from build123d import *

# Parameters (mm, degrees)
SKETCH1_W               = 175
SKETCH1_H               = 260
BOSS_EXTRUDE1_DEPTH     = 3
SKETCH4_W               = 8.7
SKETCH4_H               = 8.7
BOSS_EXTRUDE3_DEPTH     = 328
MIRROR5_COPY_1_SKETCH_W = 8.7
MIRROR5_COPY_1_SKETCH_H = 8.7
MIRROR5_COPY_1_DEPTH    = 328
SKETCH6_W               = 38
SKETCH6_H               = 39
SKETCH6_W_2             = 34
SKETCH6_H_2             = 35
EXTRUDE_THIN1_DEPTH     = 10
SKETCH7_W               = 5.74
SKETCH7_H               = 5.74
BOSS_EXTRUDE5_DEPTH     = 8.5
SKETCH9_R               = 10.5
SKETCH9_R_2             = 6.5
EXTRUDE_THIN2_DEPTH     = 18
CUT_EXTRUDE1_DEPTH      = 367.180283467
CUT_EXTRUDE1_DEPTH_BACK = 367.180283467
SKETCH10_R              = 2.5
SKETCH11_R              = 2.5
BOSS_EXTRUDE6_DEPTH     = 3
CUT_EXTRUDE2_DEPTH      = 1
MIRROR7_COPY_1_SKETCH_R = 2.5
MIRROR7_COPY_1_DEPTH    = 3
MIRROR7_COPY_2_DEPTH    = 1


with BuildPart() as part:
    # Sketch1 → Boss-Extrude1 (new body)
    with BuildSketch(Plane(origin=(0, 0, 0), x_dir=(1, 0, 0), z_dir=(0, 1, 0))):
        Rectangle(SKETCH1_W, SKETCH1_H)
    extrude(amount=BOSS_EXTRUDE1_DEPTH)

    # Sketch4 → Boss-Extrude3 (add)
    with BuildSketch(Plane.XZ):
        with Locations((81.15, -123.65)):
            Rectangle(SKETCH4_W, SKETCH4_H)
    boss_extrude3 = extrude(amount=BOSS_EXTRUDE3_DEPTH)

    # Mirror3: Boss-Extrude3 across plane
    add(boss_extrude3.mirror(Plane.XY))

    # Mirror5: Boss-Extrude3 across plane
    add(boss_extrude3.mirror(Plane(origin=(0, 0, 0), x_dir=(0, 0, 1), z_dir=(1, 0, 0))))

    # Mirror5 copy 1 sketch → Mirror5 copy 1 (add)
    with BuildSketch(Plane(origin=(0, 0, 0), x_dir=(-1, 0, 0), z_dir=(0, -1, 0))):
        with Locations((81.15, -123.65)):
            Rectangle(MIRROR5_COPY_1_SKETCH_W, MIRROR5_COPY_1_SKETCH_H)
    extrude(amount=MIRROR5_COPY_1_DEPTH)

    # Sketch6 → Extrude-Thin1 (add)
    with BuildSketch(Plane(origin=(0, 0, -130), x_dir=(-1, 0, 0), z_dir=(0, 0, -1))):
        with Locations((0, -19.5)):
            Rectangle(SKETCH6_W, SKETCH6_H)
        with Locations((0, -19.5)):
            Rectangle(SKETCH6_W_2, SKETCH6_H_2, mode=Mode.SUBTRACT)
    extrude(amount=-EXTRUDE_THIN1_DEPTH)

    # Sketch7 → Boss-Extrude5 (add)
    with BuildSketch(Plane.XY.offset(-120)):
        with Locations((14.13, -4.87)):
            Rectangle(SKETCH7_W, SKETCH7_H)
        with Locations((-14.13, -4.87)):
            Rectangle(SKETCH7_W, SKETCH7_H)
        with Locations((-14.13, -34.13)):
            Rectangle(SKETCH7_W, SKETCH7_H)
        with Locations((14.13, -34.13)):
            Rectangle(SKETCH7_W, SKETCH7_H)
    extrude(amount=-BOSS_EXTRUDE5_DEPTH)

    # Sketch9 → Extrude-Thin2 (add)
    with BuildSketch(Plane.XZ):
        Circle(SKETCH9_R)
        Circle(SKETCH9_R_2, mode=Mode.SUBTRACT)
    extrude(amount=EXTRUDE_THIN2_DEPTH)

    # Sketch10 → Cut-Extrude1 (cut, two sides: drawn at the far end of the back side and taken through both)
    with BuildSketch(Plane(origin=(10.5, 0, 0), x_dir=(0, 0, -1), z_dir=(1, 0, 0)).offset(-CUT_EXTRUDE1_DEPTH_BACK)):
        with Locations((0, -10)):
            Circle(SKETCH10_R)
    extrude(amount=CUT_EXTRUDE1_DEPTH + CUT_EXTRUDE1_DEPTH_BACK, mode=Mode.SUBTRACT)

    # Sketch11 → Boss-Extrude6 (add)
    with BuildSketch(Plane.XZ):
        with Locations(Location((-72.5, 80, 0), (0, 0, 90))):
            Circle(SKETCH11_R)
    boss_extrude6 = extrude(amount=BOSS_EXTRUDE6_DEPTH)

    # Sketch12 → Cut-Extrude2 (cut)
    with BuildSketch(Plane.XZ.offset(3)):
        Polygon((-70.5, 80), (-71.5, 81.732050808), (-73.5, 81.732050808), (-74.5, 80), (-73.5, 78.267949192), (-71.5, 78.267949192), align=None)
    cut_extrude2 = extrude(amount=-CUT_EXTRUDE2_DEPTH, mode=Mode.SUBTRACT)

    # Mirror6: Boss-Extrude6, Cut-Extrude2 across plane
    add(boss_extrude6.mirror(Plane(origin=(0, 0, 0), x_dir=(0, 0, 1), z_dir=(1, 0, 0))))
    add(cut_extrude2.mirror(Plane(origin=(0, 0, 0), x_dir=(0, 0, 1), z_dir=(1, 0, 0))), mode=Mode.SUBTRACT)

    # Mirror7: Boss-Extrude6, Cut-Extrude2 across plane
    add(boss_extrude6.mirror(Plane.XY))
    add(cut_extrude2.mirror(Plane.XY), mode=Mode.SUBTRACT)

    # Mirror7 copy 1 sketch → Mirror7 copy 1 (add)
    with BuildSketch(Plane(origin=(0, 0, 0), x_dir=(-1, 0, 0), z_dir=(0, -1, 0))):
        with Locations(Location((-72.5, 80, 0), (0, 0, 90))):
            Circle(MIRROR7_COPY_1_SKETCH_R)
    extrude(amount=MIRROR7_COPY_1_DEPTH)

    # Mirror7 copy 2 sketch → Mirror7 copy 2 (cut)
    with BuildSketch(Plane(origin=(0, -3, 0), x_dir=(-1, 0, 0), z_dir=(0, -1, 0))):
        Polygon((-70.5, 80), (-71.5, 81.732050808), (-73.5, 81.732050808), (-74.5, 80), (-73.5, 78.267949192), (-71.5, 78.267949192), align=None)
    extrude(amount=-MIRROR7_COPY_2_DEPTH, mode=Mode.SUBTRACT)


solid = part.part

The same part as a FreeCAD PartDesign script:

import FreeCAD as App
import Part
import Sketcher
from FreeCAD import Vector
Q = App.Units.Quantity

doc = App.newDocument("Part")
body = doc.addObject("PartDesign::Body", "Body")

sketch1 = doc.addObject("Sketcher::SketchObject", "Sketch")
body.addObject(sketch1)
sketch1.AttachmentSupport = (doc.XZ_Plane, [""])
sketch1.MapMode = "FlatFace"
sketch1.addGeometry([
    Part.LineSegment(Vector(-88, -130, 0), Vector(-88, 130, 0)),
    Part.LineSegment(Vector(-88, 130, 0), Vector(88, 130, 0)),
    Part.LineSegment(Vector(88, 130, 0), Vector(88, -130, 0)),
    Part.LineSegment(Vector(88, -130, 0), Vector(-88, -130, 0)),
], False)
sketch1.addConstraint([
    Sketcher.Constraint("Coincident", 0, 2, 1, 1),
    Sketcher.Constraint("Coincident", 1, 2, 2, 1),
    Sketcher.Constraint("Coincident", 2, 2, 3, 1),
    Sketcher.Constraint("Coincident", 3, 2, 0, 1),
    Sketcher.Constraint("Vertical", 0),
    Sketcher.Constraint("Horizontal", 1),
    Sketcher.Constraint("Vertical", 2),
    Sketcher.Constraint("Horizontal", 3),
    Sketcher.Constraint("Symmetric", 0, 2, 2, 2, -1, 1),
    Sketcher.Constraint("DistanceX", 1, 1, 1, 2, 175.0),
    Sketcher.Constraint("DistanceY", 0, 1, 0, 2, 260.0),
])
pad1 = doc.addObject("PartDesign::Pad", "Pad")
body.addObject(pad1)
pad1.Profile = sketch1
pad1.Length = 3
pad1.Reversed = True

sketch2 = doc.addObject("Sketcher::SketchObject", "Sketch001")
body.addObject(sketch2)
sketch2.AttachmentSupport = (doc.XZ_Plane, [""])
sketch2.MapMode = "FlatFace"
sketch2.addGeometry([
    Part.LineSegment(Vector(77, -119, 0), Vector(77, -128, 0)),
    Part.LineSegment(Vector(77, -128, 0), Vector(86, -128, 0)),
    Part.LineSegment(Vector(86, -128, 0), Vector(86, -119, 0)),
    Part.LineSegment(Vector(86, -119, 0), Vector(77, -119, 0)),
], False)
sketch2.addConstraint([
    Sketcher.Constraint("Coincident", 0, 2, 1, 1),
    Sketcher.Constraint("Coincident", 1, 2, 2, 1),
    Sketcher.Constraint("Coincident", 2, 2, 3, 1),
    Sketcher.Constraint("Coincident", 3, 2, 0, 1),
    Sketcher.Constraint("Vertical", 0),
    Sketcher.Constraint("Horizontal", 1),
    Sketcher.Constraint("Vertical", 2),
    Sketcher.Constraint("Horizontal", 3),
    Sketcher.Constraint("Equal", 3, 0),
    Sketcher.Constraint("DistanceX", 1, 1, 1, 2, 8.7),
    Sketcher.Constraint("DistanceY", 0, 2, -1, 1, 128.0),
    Sketcher.Constraint("DistanceX", -1, 1, 0, 2, 76.8),
])
pad2 = doc.addObject("PartDesign::Pad", "Pad001")
body.addObject(pad2)
pad2.Profile = sketch2
pad2.Length = 328
doc.recompute()

mirrored = doc.addObject("PartDesign::Mirrored", "Mirrored")
body.addObject(mirrored)
mirrored.Originals = [pad2]
mirrored.MirrorPlane = (doc.XY_Plane, [""])
body.Tip = mirrored
doc.recompute()

mirrored2 = doc.addObject("PartDesign::Mirrored", "Mirrored001")
body.addObject(mirrored2)
mirrored2.Originals = [pad2]
mirrored2.MirrorPlane = (doc.YZ_Plane, [""])
body.Tip = mirrored2

sketch3 = doc.addObject("Sketcher::SketchObject", "Sketch002")
body.addObject(sketch3)
sketch3.AttachmentSupport = (doc.XZ_Plane, [""])
sketch3.MapMode = "FlatFace"
sketch3.addGeometry([
    Part.LineSegment(Vector(-77, 119, 0), Vector(-77, 128, 0)),
    Part.LineSegment(Vector(-77, 128, 0), Vector(-86, 128, 0)),
    Part.LineSegment(Vector(-86, 128, 0), Vector(-86, 119, 0)),
    Part.LineSegment(Vector(-86, 119, 0), Vector(-77, 119, 0)),
], False)
sketch3.addConstraint([
    Sketcher.Constraint("Coincident", 0, 2, 1, 1),
    Sketcher.Constraint("Coincident", 1, 2, 2, 1),
    Sketcher.Constraint("Coincident", 2, 2, 3, 1),
    Sketcher.Constraint("Coincident", 3, 2, 0, 1),
    Sketcher.Constraint("Vertical", 0),
    Sketcher.Constraint("Horizontal", 1),
    Sketcher.Constraint("Vertical", 2),
    Sketcher.Constraint("Horizontal", 3),
    Sketcher.Constraint("Equal", 3, 0),
    Sketcher.Constraint("DistanceX", 1, 2, 1, 1, 8.7),
    Sketcher.Constraint("DistanceY", -1, 1, 0, 2, 128.0),
    Sketcher.Constraint("DistanceX", 0, 2, -1, 1, 76.8),
])
pad3 = doc.addObject("PartDesign::Pad", "Pad002")
body.addObject(pad3)
pad3.Profile = sketch3
pad3.Length = 328

sketch4 = doc.addObject("Sketcher::SketchObject", "Sketch003")
body.addObject(sketch4)
sketch4.AttachmentSupport = (doc.XY_Plane, [""])
sketch4.MapMode = "FlatFace"
sketch4.AttachmentOffset = App.Placement(Vector(0, 0, -130), App.Rotation())
sketch4.addGeometry([
    Part.LineSegment(Vector(19, 0, 0), Vector(19, -39, 0)),
    Part.LineSegment(Vector(19, -39, 0), Vector(-19, -39, 0)),
    Part.LineSegment(Vector(-19, -39, 0), Vector(-19, 0, 0)),
    Part.LineSegment(Vector(-19, 0, 0), Vector(19, 0, 0)),
    Part.LineSegment(Vector(-17, -37, 0), Vector(17, -37, 0)),
    Part.LineSegment(Vector(17, -37, 0), Vector(17, -2, 0)),
    Part.LineSegment(Vector(17, -2, 0), Vector(-17, -2, 0)),
    Part.LineSegment(Vector(-17, -2, 0), Vector(-17, -37, 0)),
], False)
sketch4.addConstraint([
    Sketcher.Constraint("Coincident", 0, 2, 1, 1),
    Sketcher.Constraint("Coincident", 1, 2, 2, 1),
    Sketcher.Constraint("Coincident", 2, 2, 3, 1),
    Sketcher.Constraint("Coincident", 3, 2, 0, 1),
    Sketcher.Constraint("Coincident", 4, 2, 5, 1),
    Sketcher.Constraint("Coincident", 5, 2, 6, 1),
    Sketcher.Constraint("Coincident", 6, 2, 7, 1),
    Sketcher.Constraint("Coincident", 7, 2, 4, 1),
    Sketcher.Constraint("Vertical", 0),
    Sketcher.Constraint("Horizontal", 1),
    Sketcher.Constraint("Vertical", 2),
    Sketcher.Constraint("Horizontal", 3),
    Sketcher.Constraint("Horizontal", 4),
    Sketcher.Constraint("Vertical", 5),
    Sketcher.Constraint("Horizontal", 6),
    Sketcher.Constraint("Vertical", 7),
    Sketcher.Constraint("Symmetric", 2, 2, 3, 2, -1, 1),
    Sketcher.Constraint("DistanceX", 1, 2, 1, 1, 38.0),
    Sketcher.Constraint("DistanceX", 4, 1, 4, 2, 34.0),
    Sketcher.Constraint("DistanceY", 0, 2, 0, 1, 39.0),
    Sketcher.Constraint("DistanceY", 5, 1, 5, 2, 35.0),
    Sketcher.Constraint("DistanceX", -1, 1, 4, 2, 17.0),
    Sketcher.Constraint("DistanceY", 4, 2, -1, 1, 37.0),
])
pad4 = doc.addObject("PartDesign::Pad", "Pad003")
body.addObject(pad4)
pad4.Profile = sketch4
pad4.Length = 10

sketch5 = doc.addObject("Sketcher::SketchObject", "Sketch004")
body.addObject(sketch5)
sketch5.AttachmentSupport = (doc.XY_Plane, [""])
sketch5.MapMode = "FlatFace"
sketch5.AttachmentOffset = App.Placement(Vector(0, 0, -120), App.Rotation())
sketch5.addGeometry([
    Part.LineSegment(Vector(11, -2, 0), Vector(11, -8, 0)),
    Part.LineSegment(Vector(11, -8, 0), Vector(17, -8, 0)),
    Part.LineSegment(Vector(17, -8, 0), Vector(17, -2, 0)),
    Part.LineSegment(Vector(17, -2, 0), Vector(11, -2, 0)),
    Part.LineSegment(Vector(-17, -2, 0), Vector(-17, -8, 0)),
    Part.LineSegment(Vector(-17, -8, 0), Vector(-11, -8, 0)),
    Part.LineSegment(Vector(-11, -8, 0), Vector(-11, -2, 0)),
    Part.LineSegment(Vector(-11, -2, 0), Vector(-17, -2, 0)),
    Part.LineSegment(Vector(-17, -31, 0), Vector(-17, -37, 0)),
    Part.LineSegment(Vector(-17, -37, 0), Vector(-11, -37, 0)),
    Part.LineSegment(Vector(-11, -37, 0), Vector(-11, -31, 0)),
    Part.LineSegment(Vector(-11, -31, 0), Vector(-17, -31, 0)),
    Part.LineSegment(Vector(11, -31, 0), Vector(11, -37, 0)),
    Part.LineSegment(Vector(11, -37, 0), Vector(17, -37, 0)),
    Part.LineSegment(Vector(17, -37, 0), Vector(17, -31, 0)),
    Part.LineSegment(Vector(17, -31, 0), Vector(11, -31, 0)),
], False)
sketch5.addConstraint([
    Sketcher.Constraint("Coincident", 0, 2, 1, 1),
    Sketcher.Constraint("Coincident", 1, 2, 2, 1),
    Sketcher.Constraint("Coincident", 2, 2, 3, 1),
    Sketcher.Constraint("Coincident", 3, 2, 0, 1),
    Sketcher.Constraint("Coincident", 4, 2, 5, 1),
    Sketcher.Constraint("Coincident", 5, 2, 6, 1),
    Sketcher.Constraint("Coincident", 6, 2, 7, 1),
    Sketcher.Constraint("Coincident", 7, 2, 4, 1),
    Sketcher.Constraint("Coincident", 8, 2, 9, 1),
    Sketcher.Constraint("Coincident", 9, 2, 10, 1),
    Sketcher.Constraint("Coincident", 10, 2, 11, 1),
    Sketcher.Constraint("Coincident", 11, 2, 8, 1),
    Sketcher.Constraint("Coincident", 12, 2, 13, 1),
    Sketcher.Constraint("Coincident", 13, 2, 14, 1),
    Sketcher.Constraint("Coincident", 14, 2, 15, 1),
    Sketcher.Constraint("Coincident", 15, 2, 12, 1),
    Sketcher.Constraint("Vertical", 0),
    Sketcher.Constraint("Horizontal", 1),
    Sketcher.Constraint("Vertical", 2),
    Sketcher.Constraint("Horizontal", 3),
    Sketcher.Constraint("Vertical", 4),
    Sketcher.Constraint("Horizontal", 5),
    Sketcher.Constraint("Vertical", 6),
    Sketcher.Constraint("Horizontal", 7),
    Sketcher.Constraint("Vertical", 8),
    Sketcher.Constraint("Horizontal", 9),
    Sketcher.Constraint("Vertical", 10),
    Sketcher.Constraint("Horizontal", 11),
    Sketcher.Constraint("Vertical", 12),
    Sketcher.Constraint("Horizontal", 13),
    Sketcher.Constraint("Vertical", 14),
    Sketcher.Constraint("Horizontal", 15),
    Sketcher.Constraint("Symmetric", 1, 2, 4, 2, -2),
    Sketcher.Constraint("Symmetric", 3, 2, 6, 2, -2),
    Sketcher.Constraint("Symmetric", 9, 2, 12, 2, -2),
    Sketcher.Constraint("Symmetric", 11, 2, 14, 2, -2),
    Sketcher.Constraint("Vertical", 7, 2, 8, 2),
    Sketcher.Constraint("Vertical", 6, 2, 9, 2),
    Sketcher.Constraint("Equal", 15, 0),
    Sketcher.Constraint("Equal", 6, 8),
    Sketcher.Constraint("DistanceX", -1, 1, 1, 2, 17.0),
    Sketcher.Constraint("DistanceY", 2, 2, -1, 1, 2.0),
    Sketcher.Constraint("DistanceY", 8, 2, -1, 1, 37.0),
    Sketcher.Constraint("DistanceX", 1, 1, 1, 2, 5.74),
])
pad5 = doc.addObject("PartDesign::Pad", "Pad004")
body.addObject(pad5)
pad5.Profile = sketch5
pad5.Length = 8.5
pad5.Reversed = True

sketch6 = doc.addObject("Sketcher::SketchObject", "Sketch005")
body.addObject(sketch6)
sketch6.AttachmentSupport = (doc.XZ_Plane, [""])
sketch6.MapMode = "FlatFace"
sketch6.addGeometry([
    Part.Circle(Vector(0, 0, 0), Vector(0, 0, 1), 10),
    Part.Circle(Vector(0, 0, 0), Vector(0, 0, 1), 6),
], False)
sketch6.addConstraint([
    Sketcher.Constraint("Coincident", 0, 3, -1, 1),
    Sketcher.Constraint("Coincident", 1, 3, -1, 1),
    Sketcher.Constraint("Diameter", 0, 21.0),
    Sketcher.Constraint("Diameter", 1, 13.0),
])
pad6 = doc.addObject("PartDesign::Pad", "Pad005")
body.addObject(pad6)
pad6.Profile = sketch6
pad6.Length = 18

sketch7 = doc.addObject("Sketcher::SketchObject", "Sketch006")
body.addObject(sketch7)
sketch7.AttachmentSupport = (doc.YZ_Plane, [""])
sketch7.MapMode = "FlatFace"
sketch7.AttachmentOffset = App.Placement(Vector(0, 0, 10.5), App.Rotation())
sketch7.addGeometry(Part.Circle(Vector(-10, 0, 0), Vector(0, 0, 1), 2.5), False)
sketch7.addConstraint([
    Sketcher.Constraint("PointOnObject", 0, 3, -1),
    Sketcher.Constraint("Diameter", 0, 5.0),
    Sketcher.Constraint("DistanceX", 0, 3, -1, 1, 10.0),
])
pocket1 = doc.addObject("PartDesign::Pocket", "Pocket")
body.addObject(pocket1)
pocket1.Profile = sketch7
pocket1.Type = "ThroughAll"
pocket1.Midplane = True

sketch8 = doc.addObject("Sketcher::SketchObject", "Sketch007")
body.addObject(sketch8)
sketch8.AttachmentSupport = (doc.XZ_Plane, [""])
sketch8.MapMode = "FlatFace"
sketch8.addGeometry(Part.Circle(Vector(-72.5, 80, 0), Vector(0, 0, 1), 2.5), False)
sketch8.addConstraint([
    Sketcher.Constraint("Diameter", 0, 5.0),
    Sketcher.Constraint("DistanceY", -1, 1, 0, 3, 80.0),
    Sketcher.Constraint("DistanceX", 0, 3, -1, 1, 72.5),
])
pad7 = doc.addObject("PartDesign::Pad", "Pad006")
body.addObject(pad7)
pad7.Profile = sketch8
pad7.Length = 3

sketch9 = doc.addObject("Sketcher::SketchObject", "Sketch008")
body.addObject(sketch9)
sketch9.AttachmentSupport = (doc.XZ_Plane, [""])
sketch9.MapMode = "FlatFace"
sketch9.AttachmentOffset = App.Placement(Vector(0, 0, 3), App.Rotation())
sketch9.addGeometry([
    Part.LineSegment(Vector(-70.5, 80, 0), Vector(-71.5, 81.7, 0)),
    Part.LineSegment(Vector(-71.5, 81.7, 0), Vector(-73.5, 81.7, 0)),
    Part.LineSegment(Vector(-73.5, 81.7, 0), Vector(-74.5, 80, 0)),
    Part.LineSegment(Vector(-74.5, 80, 0), Vector(-73.5, 78.3, 0)),
    Part.LineSegment(Vector(-73.5, 78.3, 0), Vector(-71.5, 78.3, 0)),
    Part.LineSegment(Vector(-71.5, 78.3, 0), Vector(-70.5, 80, 0)),
], False)
sketch9.addConstraint([
    Sketcher.Constraint("Coincident", 0, 2, 1, 1),
    Sketcher.Constraint("Coincident", 1, 2, 2, 1),
    Sketcher.Constraint("Coincident", 2, 2, 3, 1),
    Sketcher.Constraint("Coincident", 3, 2, 4, 1),
    Sketcher.Constraint("Coincident", 4, 2, 5, 1),
    Sketcher.Constraint("Coincident", 5, 2, 0, 1),
    Sketcher.Constraint("Horizontal", 1),
    Sketcher.Constraint("Horizontal", 4),
    Sketcher.Constraint("Parallel", 0, 3),
    Sketcher.Constraint("Parallel", 2, 5),
    Sketcher.Constraint("Horizontal", 2, 2, 5, 2),
    Sketcher.Constraint("Vertical", 1, 2, 3, 2),
    Sketcher.Constraint("Vertical", 0, 2, 4, 2),
    Sketcher.Constraint("DistanceX", 1, 2, 1, 1, 2.0),
    Sketcher.Constraint("Angle", 0, Q("120 deg")),
    Sketcher.Constraint("Distance", 0, 2.0),
    Sketcher.Constraint("DistanceY", -1, 1, 2, 2, 80.0),
    Sketcher.Constraint("DistanceX", 0, 2, -1, 1, 71.5),
])
pocket2 = doc.addObject("PartDesign::Pocket", "Pocket001")
body.addObject(pocket2)
pocket2.Profile = sketch9
pocket2.Length = 1
doc.recompute()

mirrored3 = doc.addObject("PartDesign::Mirrored", "Mirrored002")
body.addObject(mirrored3)
mirrored3.Originals = [pad7, pocket2]
mirrored3.MirrorPlane = (doc.YZ_Plane, [""])
body.Tip = mirrored3
doc.recompute()

mirrored4 = doc.addObject("PartDesign::Mirrored", "Mirrored003")
body.addObject(mirrored4)
mirrored4.Originals = [pad7, pocket2]
mirrored4.MirrorPlane = (doc.XY_Plane, [""])
body.Tip = mirrored4

sketch10 = doc.addObject("Sketcher::SketchObject", "Sketch009")
body.addObject(sketch10)
sketch10.AttachmentSupport = (doc.XZ_Plane, [""])
sketch10.MapMode = "FlatFace"
sketch10.addGeometry(Part.Circle(Vector(72.5, -80, 0), Vector(0, 0, 1), 2.5), False)
sketch10.addConstraint([
    Sketcher.Constraint("Diameter", 0, 5.0),
    Sketcher.Constraint("DistanceY", 0, 3, -1, 1, 80.0),
    Sketcher.Constraint("DistanceX", -1, 1, 0, 3, 72.5),
])
pad8 = doc.addObject("PartDesign::Pad", "Pad007")
body.addObject(pad8)
pad8.Profile = sketch10
pad8.Length = 3

sketch11 = doc.addObject("Sketcher::SketchObject", "Sketch010")
body.addObject(sketch11)
sketch11.AttachmentSupport = (doc.XZ_Plane, [""])
sketch11.MapMode = "FlatFace"
sketch11.AttachmentOffset = App.Placement(Vector(0, 0, 3), App.Rotation())
sketch11.addGeometry([
    Part.LineSegment(Vector(70.5, -80, 0), Vector(71.5, -81.7, 0)),
    Part.LineSegment(Vector(71.5, -81.7, 0), Vector(73.5, -81.7, 0)),
    Part.LineSegment(Vector(73.5, -81.7, 0), Vector(74.5, -80, 0)),
    Part.LineSegment(Vector(74.5, -80, 0), Vector(73.5, -78.3, 0)),
    Part.LineSegment(Vector(73.5, -78.3, 0), Vector(71.5, -78.3, 0)),
    Part.LineSegment(Vector(71.5, -78.3, 0), Vector(70.5, -80, 0)),
], False)
sketch11.addConstraint([
    Sketcher.Constraint("Coincident", 0, 2, 1, 1),
    Sketcher.Constraint("Coincident", 1, 2, 2, 1),
    Sketcher.Constraint("Coincident", 2, 2, 3, 1),
    Sketcher.Constraint("Coincident", 3, 2, 4, 1),
    Sketcher.Constraint("Coincident", 4, 2, 5, 1),
    Sketcher.Constraint("Coincident", 5, 2, 0, 1),
    Sketcher.Constraint("Horizontal", 1),
    Sketcher.Constraint("Horizontal", 4),
    Sketcher.Constraint("Parallel", 0, 3),
    Sketcher.Constraint("Parallel", 2, 5),
    Sketcher.Constraint("Horizontal", 2, 2, 5, 2),
    Sketcher.Constraint("Vertical", 1, 2, 3, 2),
    Sketcher.Constraint("Vertical", 0, 2, 4, 2),
    Sketcher.Constraint("DistanceX", 1, 1, 1, 2, 2.0),
    Sketcher.Constraint("Angle", 0, Q("-60 deg")),
    Sketcher.Constraint("Distance", 0, 2.0),
    Sketcher.Constraint("DistanceY", 2, 2, -1, 1, 80.0),
    Sketcher.Constraint("DistanceX", -1, 1, 0, 2, 71.5),
])
pocket3 = doc.addObject("PartDesign::Pocket", "Pocket002")
body.addObject(pocket3)
pocket3.Profile = sketch11
pocket3.Length = 1

doc.recompute()
